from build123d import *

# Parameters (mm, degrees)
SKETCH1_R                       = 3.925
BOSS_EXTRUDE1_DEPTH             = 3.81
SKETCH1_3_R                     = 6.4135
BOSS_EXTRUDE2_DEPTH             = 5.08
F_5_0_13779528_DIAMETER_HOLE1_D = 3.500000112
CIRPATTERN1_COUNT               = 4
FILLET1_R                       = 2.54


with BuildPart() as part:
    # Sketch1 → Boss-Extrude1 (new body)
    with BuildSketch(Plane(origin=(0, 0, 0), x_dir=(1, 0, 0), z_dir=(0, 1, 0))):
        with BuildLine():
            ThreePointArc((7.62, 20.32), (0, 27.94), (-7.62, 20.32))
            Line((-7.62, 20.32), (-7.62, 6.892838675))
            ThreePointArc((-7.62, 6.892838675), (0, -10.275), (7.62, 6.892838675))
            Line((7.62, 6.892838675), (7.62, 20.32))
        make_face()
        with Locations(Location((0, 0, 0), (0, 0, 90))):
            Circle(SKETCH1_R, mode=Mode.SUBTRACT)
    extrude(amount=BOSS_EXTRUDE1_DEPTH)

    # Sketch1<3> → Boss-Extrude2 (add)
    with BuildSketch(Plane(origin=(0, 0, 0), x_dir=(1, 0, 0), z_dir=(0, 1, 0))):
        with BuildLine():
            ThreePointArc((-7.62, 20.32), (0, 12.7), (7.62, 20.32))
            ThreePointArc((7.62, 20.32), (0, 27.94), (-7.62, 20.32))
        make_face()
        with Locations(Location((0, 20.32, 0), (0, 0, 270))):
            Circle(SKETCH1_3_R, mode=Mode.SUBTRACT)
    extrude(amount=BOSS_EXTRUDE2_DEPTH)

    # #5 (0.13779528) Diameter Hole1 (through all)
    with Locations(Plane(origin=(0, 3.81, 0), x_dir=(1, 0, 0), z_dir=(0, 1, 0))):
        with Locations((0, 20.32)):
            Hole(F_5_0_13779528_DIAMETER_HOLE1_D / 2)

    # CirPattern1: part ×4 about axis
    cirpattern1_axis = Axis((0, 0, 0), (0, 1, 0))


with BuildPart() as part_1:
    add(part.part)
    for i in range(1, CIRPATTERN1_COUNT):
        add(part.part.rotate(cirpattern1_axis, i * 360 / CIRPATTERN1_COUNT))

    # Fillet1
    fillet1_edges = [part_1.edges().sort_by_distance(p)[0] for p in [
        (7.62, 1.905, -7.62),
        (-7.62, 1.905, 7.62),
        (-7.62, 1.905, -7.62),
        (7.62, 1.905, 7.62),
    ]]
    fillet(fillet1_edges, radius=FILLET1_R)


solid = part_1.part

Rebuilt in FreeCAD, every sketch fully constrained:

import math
import FreeCAD as App
import Part
import Sketcher

V = App.Vector
Q = App.Units.Quantity


def edges_at(feature, points):
    """Names of the edges that pass closest to the given points."""
    edges = feature.Shape.Edges
    near = lambda p: min(range(len(edges)), key=lambda i: edges[i].distToShape(Part.Vertex(*p))[0])
    return sorted({f"Edge{near(p) + 1}" for p in points})

doc = App.newDocument("Part")
params = doc.addObject("Spreadsheet::Sheet", "Params")
for row, (alias, value) in enumerate([
    ("sketch1_radius", "0.3 in"),
    ("pad1_length", "0.15 in"),
    ("sketch2_diameter", "0.6 in"),
    ("sketch2_diameter2", "0.505 in"),
    ("pad2_length", "0.2 in"),
    ("hole_diameter", "3.5 mm"),
    ("fillet_radius", "0.1 in"),
], start=1):
    params.set(f"A{row}", alias)
    params.set(f"B{row}", "=" + value)
    params.setAlias(f"B{row}", alias)

body = doc.addObject("PartDesign::Body", "Body")

# Sketch on XZ plane
sketch1 = body.newObject("Sketcher::SketchObject", "Sketch")
sketch1.AttachmentSupport = (doc.getObject("XZ_Plane"), [""])
sketch1.MapMode = "FlatFace"
sketch1.addGeometry(Part.ArcOfCircle(Part.Circle(V(0, -20.3, 0), V(0, 0, 1), 7.6), math.radians(180), math.radians(360)), False)
sketch1.addGeometry(Part.LineSegment(V(-7.6, -20.3, 0), V(-7.6, -6.9, 0)), False)
sketch1.addGeometry(Part.ArcOfCircle(Part.Circle(V(0, 0, 0), V(0, 0, 1), 10.3), math.radians(-42), math.radians(222)), False)
sketch1.addGeometry(Part.LineSegment(V(7.6, -6.9, 0), V(7.6, -20.3, 0)), False)
sketch1.addGeometry(Part.Circle(V(0, 0, 0), V(0, 0, 1), 3.9), False)
sketch1.addConstraint(Sketcher.Constraint("Tangent", 0, 1, 1, 1))
sketch1.addConstraint(Sketcher.Constraint("Coincident", 1, 2, 2, 2))
sketch1.addConstraint(Sketcher.Constraint("Coincident", 2, 1, 3, 1))
sketch1.addConstraint(Sketcher.Constraint("Tangent", 3, 2, 0, 2))
sketch1.addConstraint(Sketcher.Constraint("Vertical", 1))
sketch1.addConstraint(Sketcher.Constraint("Vertical", 3))
sketch1.addConstraint(Sketcher.Constraint("Coincident", 2, 3, -1, 1))
sketch1.addConstraint(Sketcher.Constraint("Coincident", 4, 3, -1, 1))
sketch1.addConstraint(Sketcher.Constraint("PointOnObject", 0, 3, -2))
sketch1.addConstraint(Sketcher.Constraint("Radius", 0, Q("0.3 in")))
sketch1.addConstraint(Sketcher.Constraint("DistanceY", 0, 3, -1, 1, Q("0.8 in")))
sketch1.addConstraint(Sketcher.Constraint("Diameter", 4, Q("7.85 mm")))
sketch1.addConstraint(Sketcher.Constraint("Radius", 2, Q("10.275 mm")))
sketch1.setExpression("Constraints[9]", "Params.sketch1_radius")
pad1 = body.newObject("PartDesign::Pad", "Pad")
pad1.Profile = sketch1
pad1.setExpression("Length", "Params.pad1_length")
pad1.Reversed = True

# Sketch on XZ plane
sketch2 = body.newObject("Sketcher::SketchObject", "Sketch001")
sketch2.AttachmentSupport = (doc.getObject("XZ_Plane"), [""])
sketch2.MapMode = "FlatFace"
sketch2.addGeometry(Part.Circle(V(0, -20, 0), V(0, 0, 1), 8), False)
sketch2.addGeometry(Part.Circle(V(0, -20, 0), V(0, 0, 1), 6), False)
sketch2.addConstraint(Sketcher.Constraint("Coincident", 1, 3, 0, 3))
sketch2.addConstraint(Sketcher.Constraint("PointOnObject", 0, 3, -2))
sketch2.addConstraint(Sketcher.Constraint("Diameter", 0, Q("0.6 in")))
sketch2.addConstraint(Sketcher.Constraint("Diameter", 1, Q("0.505 in")))
sketch2.addConstraint(Sketcher.Constraint("DistanceY", 0, 3, -1, 1, Q("0.8 in")))
sketch2.setExpression("Constraints[2]", "Params.sketch2_diameter")
sketch2.setExpression("Constraints[3]", "Params.sketch2_diameter2")
pad2 = body.newObject("PartDesign::Pad", "Pad001")
pad2.Profile = sketch2
pad2.setExpression("Length", "Params.pad2_length")
pad2.Reversed = True

# Sketch on XZ plane
sketch3 = body.newObject("Sketcher::SketchObject", "Sketch002")
sketch3.AttachmentSupport = (doc.getObject("XZ_Plane"), [""])
sketch3.MapMode = "FlatFace"
sketch3.AttachmentOffset = App.Placement(V(0, 0, -0.15 * 25.4), App.Rotation())
sketch3.addGeometry(Part.Circle(V(0, -20.3, 0), V(0, 0, 1), 1.8), False)
sketch3.addConstraint(Sketcher.Constraint("PointOnObject", 0, 3, -2))
sketch3.addConstraint(Sketcher.Constraint("DistanceY", 0, 3, -1, 1, Q("0.8 in")))
sketch3.addConstraint(Sketcher.Constraint("Diameter", 0, Q("3.5 mm")))
doc.recompute()
hole = body.newObject("PartDesign::Hole", "Hole")
hole.Profile = sketch3
hole.ThreadType = "None"
hole.setExpression("Diameter", "Params.hole_diameter")
hole.DepthType = "ThroughAll"
hole.Reversed = True
body2 = doc.addObject("PartDesign::Body", "Body001")
doc.recompute()

body2.BaseFeature = body
doc.recompute()

body3 = doc.addObject("PartDesign::Body", "Body002")
body3.BaseFeature = body
body3.Placement = App.Placement(V(0, 0, 0), App.Rotation(V(0, 1, 0), 90))
boolean = body2.newObject("PartDesign::Boolean", "Boolean")
boolean.Type = "Fuse"
boolean.addObjects([body3])
doc.recompute()

body4 = doc.addObject("PartDesign::Body", "Body003")
body4.BaseFeature = body
body4.Placement = App.Placement(V(0, 0, 0), App.Rotation(V(0, 1, 0), 180))
boolean2 = body2.newObject("PartDesign::Boolean", "Boolean001")
boolean2.Type = "Fuse"
boolean2.addObjects([body4])
doc.recompute()

body.Placement = App.Placement(V(0, 0, 0), App.Rotation(V(0, 1, 0), 270))
boolean3 = body2.newObject("PartDesign::Boolean", "Boolean002")
boolean3.Type = "Fuse"
boolean3.addObjects([body])
doc.recompute()

fillet = body2.newObject("PartDesign::Fillet", "Fillet")
fillet.Base = (boolean3, edges_at(boolean3, [
    (7.62, 1.905, -7.62),
    (-7.62, 1.905, 7.62),
    (-7.62, 1.905, -7.62),
    (7.62, 1.905, 7.62),
]))
fillet.setExpression("Radius", "Params.fillet_radius")

doc.recompute()
